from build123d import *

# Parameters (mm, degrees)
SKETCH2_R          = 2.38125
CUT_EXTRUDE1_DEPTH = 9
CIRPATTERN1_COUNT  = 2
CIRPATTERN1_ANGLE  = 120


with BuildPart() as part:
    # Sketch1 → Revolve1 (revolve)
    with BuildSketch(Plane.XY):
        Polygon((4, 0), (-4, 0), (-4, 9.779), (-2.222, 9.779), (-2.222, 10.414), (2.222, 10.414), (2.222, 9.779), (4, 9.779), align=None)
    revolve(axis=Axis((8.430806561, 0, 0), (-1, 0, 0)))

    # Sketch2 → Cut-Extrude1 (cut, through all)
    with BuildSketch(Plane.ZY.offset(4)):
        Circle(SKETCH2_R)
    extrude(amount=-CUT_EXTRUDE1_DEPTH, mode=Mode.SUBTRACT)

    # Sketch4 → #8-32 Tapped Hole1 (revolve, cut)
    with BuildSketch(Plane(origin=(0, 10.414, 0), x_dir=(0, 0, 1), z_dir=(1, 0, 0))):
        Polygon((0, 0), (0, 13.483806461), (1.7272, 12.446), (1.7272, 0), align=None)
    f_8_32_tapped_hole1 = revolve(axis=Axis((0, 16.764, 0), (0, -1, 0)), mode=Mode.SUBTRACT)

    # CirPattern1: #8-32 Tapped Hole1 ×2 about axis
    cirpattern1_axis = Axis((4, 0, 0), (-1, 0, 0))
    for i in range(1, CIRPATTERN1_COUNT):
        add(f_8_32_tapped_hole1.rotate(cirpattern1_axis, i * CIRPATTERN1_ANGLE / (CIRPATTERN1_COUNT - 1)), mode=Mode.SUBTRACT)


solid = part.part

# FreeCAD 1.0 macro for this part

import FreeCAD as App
import Part
import Sketcher
from FreeCAD import Vector
Q = App.Units.Quantity


def add_polygon(sketch, points):
    """Adds a closed chain of lines whose ends are joined by coincident constraints."""
    first, n = sketch.GeometryCount, len(points)
    for a, b in zip(points, points[1:] + points[:1]):
        sketch.addGeometry(Part.LineSegment(App.Vector(*a, 0), App.Vector(*b, 0)), False)
    for i in range(n):
        sketch.addConstraint(Sketcher.Constraint("Coincident", first + i, 2, first + (i + 1) % n, 1))

doc = App.newDocument("Part")
body = doc.addObject("PartDesign::Body", "Body")

# Sketch on XY plane
sketch1 = doc.addObject("Sketcher::SketchObject", "Sketch")
body.addObject(sketch1)
sketch1.AttachmentSupport = (doc.XY_Plane, [""])
sketch1.MapMode = "FlatFace"
add_polygon(sketch1, [(-4, 0), (4, 0), (4, 9.8), (2.2, 9.8), (2.2, 10.4), (-2.2, 10.4), (-2.2, 9.8), (-4, 9.8)])  # lines 0-7
sketch1.addConstraint([
    Sketcher.Constraint("Horizontal", 0),
    Sketcher.Constraint("Vertical", 1),
    Sketcher.Constraint("Horizontal", 2),
    Sketcher.Constraint("Vertical", 3),
    Sketcher.Constraint("Horizontal", 4),
    Sketcher.Constraint("Vertical", 5),
    Sketcher.Constraint("Horizontal", 6),
    Sketcher.Constraint("Vertical", 7),
    Sketcher.Constraint("Symmetric", 0, 2, 7, 2, -1, 1),
    Sketcher.Constraint("Symmetric", 2, 2, 5, 2, -2),
    Sketcher.Constraint("DistanceX", 2, 2, 2, 1, Q("0.07 in")),
    Sketcher.Constraint("DistanceY", 1, 1, 1, 2, Q("0.385 in")),
    Sketcher.Constraint("DistanceY", 3, 1, 3, 2, Q("0.025 in")),
    Sketcher.Constraint("DistanceX", 0, 1, 0, 2, Q("8 mm")),
])
revolution = doc.addObject("PartDesign::Revolution", "Revolution")
body.addObject(revolution)
revolution.Profile = sketch1
revolution.ReferenceAxis = (sketch1, ["H_Axis"])
revolution.Angle = 360

# Sketch on YZ plane
sketch2 = doc.addObject("Sketcher::SketchObject", "Sketch001")
body.addObject(sketch2)
sketch2.AttachmentSupport = (doc.YZ_Plane, [""])
sketch2.MapMode = "FlatFace"
sketch2.AttachmentOffset = App.Placement(Vector(0, 0, -4), App.Rotation())
sketch2.addGeometry(Part.Circle(Vector(0, 0, 0), Vector(0, 0, 1), 2.4), False)
sketch2.addConstraint([
    Sketcher.Constraint("Coincident", 0, 3, -1, 1),
    Sketcher.Constraint("Diameter", 0, Q("0.1875 in")),
])
pocket1 = doc.addObject("PartDesign::Pocket", "Pocket")
body.addObject(pocket1)
pocket1.Profile = sketch2
pocket1.Type = "ThroughAll"
pocket1.Reversed = True

# Sketch on YZ plane
sketch3 = doc.addObject("Sketcher::SketchObject", "Sketch002")
body.addObject(sketch3)
sketch3.AttachmentSupport = (doc.YZ_Plane, [""])
sketch3.MapMode = "FlatFace"
add_polygon(sketch3, [(-3.1, 0), (10.4, 0), (10.4, 1.7), (-2, 1.7)])  # lines 0-3
sketch3.addConstraint([
    Sketcher.Constraint("Horizontal", 0),
    Sketcher.Constraint("Vertical", 1),
    Sketcher.Constraint("Horizontal", 2),
    Sketcher.Constraint("PointOnObject", 0, 2, -1),
    Sketcher.Constraint("Angle", 3, Q("-121 deg")),
    Sketcher.Constraint("DistanceX", 2, 2, 2, 1, Q("0.49 in")),
    Sketcher.Constraint("DistanceY", 1, 1, 1, 2, Q("0.068 in")),
    Sketcher.Constraint("DistanceX", -1, 1, 0, 2, Q("0.41 in")),
])
groove = doc.addObject("PartDesign::Groove", "Groove")
body.addObject(groove)
groove.Profile = sketch3
groove.ReferenceAxis = (sketch3, ["H_Axis"])
groove.Angle = 360
doc.recompute()

polarpattern = doc.addObject("PartDesign::PolarPattern", "PolarPattern")
body.addObject(polarpattern)
polarpattern.Originals = [groove]
polarpattern.Axis = (doc.X_Axis, [""])
polarpattern.Angle = 120
polarpattern.Occurrences = 2
polarpattern.Reversed = True
body.Tip = polarpattern

doc.recompute()
